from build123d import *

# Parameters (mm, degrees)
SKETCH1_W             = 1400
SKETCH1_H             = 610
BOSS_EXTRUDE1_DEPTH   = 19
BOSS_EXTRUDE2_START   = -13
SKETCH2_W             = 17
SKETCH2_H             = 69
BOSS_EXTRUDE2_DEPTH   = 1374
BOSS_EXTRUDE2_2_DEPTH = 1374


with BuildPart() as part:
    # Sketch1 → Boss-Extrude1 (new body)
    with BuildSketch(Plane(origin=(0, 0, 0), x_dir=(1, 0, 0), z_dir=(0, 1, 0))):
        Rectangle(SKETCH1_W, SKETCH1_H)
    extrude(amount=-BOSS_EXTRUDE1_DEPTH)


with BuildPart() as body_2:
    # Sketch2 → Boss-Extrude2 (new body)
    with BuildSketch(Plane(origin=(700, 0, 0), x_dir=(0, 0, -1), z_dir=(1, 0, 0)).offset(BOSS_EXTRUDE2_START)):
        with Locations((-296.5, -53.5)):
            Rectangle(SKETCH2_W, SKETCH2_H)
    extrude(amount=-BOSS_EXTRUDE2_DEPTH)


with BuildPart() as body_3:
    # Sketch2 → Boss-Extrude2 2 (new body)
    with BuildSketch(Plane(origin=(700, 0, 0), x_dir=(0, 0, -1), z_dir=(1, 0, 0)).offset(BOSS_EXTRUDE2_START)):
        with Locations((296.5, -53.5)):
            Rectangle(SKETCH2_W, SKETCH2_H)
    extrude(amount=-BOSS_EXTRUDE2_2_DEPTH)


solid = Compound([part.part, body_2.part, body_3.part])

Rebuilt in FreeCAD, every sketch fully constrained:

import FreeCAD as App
import Part
import Sketcher
from FreeCAD import Vector


def add_polygon(sketch, points):
    """Adds a closed chain of lines whose ends are joined by coincident constraints."""
    first, n = sketch.GeometryCount, len(points)
    for a, b in zip(points, points[1:] + points[:1]):
        sketch.addGeometry(Part.LineSegment(App.Vector(*a, 0), App.Vector(*b, 0)), False)
    for i in range(n):
        sketch.addConstraint(Sketcher.Constraint("Coincident", first + i, 2, first + (i + 1) % n, 1))

doc = App.newDocument("Part")
body = doc.addObject("PartDesign::Body", "Body")

# Sketch on XZ plane
sketch1 = body.newObject("Sketcher::SketchObject", "Sketch")
sketch1.AttachmentSupport = (doc.getObject("XZ_Plane"), [""])
sketch1.MapMode = "FlatFace"
add_polygon(sketch1, [(-700, -305), (-700, 305), (700, 305), (700, -305)])  # lines 0-3
sketch1.addConstraint([
    Sketcher.Constraint("Vertical", 0),
    Sketcher.Constraint("Horizontal", 1),
    Sketcher.Constraint("Vertical", 2),
    Sketcher.Constraint("Horizontal", 3),
    Sketcher.Constraint("Symmetric", 0, 2, 2, 2, -1, 1),
    Sketcher.Constraint("DistanceX", 1, 1, 1, 2, 1400.0),
    Sketcher.Constraint("DistanceY", 0, 1, 0, 2, 610.0),
])
pad1 = body.newObject("PartDesign::Pad", "Pad")
pad1.Profile = sketch1
pad1.Length = 19
body2 = doc.addObject("PartDesign::Body", "Body001")

# Sketch on YZ plane
sketch2 = body2.newObject("Sketcher::SketchObject", "Sketch001")
sketch2.AttachmentSupport = (doc.getObject("YZ_Plane001"), [""])
sketch2.MapMode = "FlatFace"
sketch2.AttachmentOffset = App.Placement(Vector(0, 0, 687), App.Rotation())
add_polygon(sketch2, [(-19, 305), (-88, 305), (-88, 288), (-19, 288)])  # lines 0-3
sketch2.addConstraint([
    Sketcher.Constraint("Horizontal", 0),
    Sketcher.Constraint("Vertical", 1),
    Sketcher.Constraint("Horizontal", 2),
    Sketcher.Constraint("Vertical", 3),
    Sketcher.Constraint("DistanceX", 0, 2, 0, 1, 69.0),
    Sketcher.Constraint("DistanceY", 1, 2, 1, 1, 17.0),
    Sketcher.Constraint("DistanceX", 0, 2, -1, 1, 88.0),
    Sketcher.Constraint("DistanceY", -1, 1, 0, 2, 305.0),
])
pad2 = body2.newObject("PartDesign::Pad", "Pad001")
pad2.Profile = sketch2
pad2.Length = 1374
pad2.Reversed = True
body3 = doc.addObject("PartDesign::Body", "Body002")

# Sketch on YZ plane
sketch3 = body3.newObject("Sketcher::SketchObject", "Sketch002")
sketch3.AttachmentSupport = (doc.getObject("YZ_Plane002"), [""])
sketch3.MapMode = "FlatFace"
sketch3.AttachmentOffset = App.Placement(Vector(0, 0, 687), App.Rotation())
add_polygon(sketch3, [(-19, -288), (-88, -288), (-88, -305), (-19, -305)])  # lines 0-3
sketch3.addConstraint([
    Sketcher.Constraint("Horizontal", 0),
    Sketcher.Constraint("Vertical", 1),
    Sketcher.Constraint("Horizontal", 2),
    Sketcher.Constraint("Vertical", 3),
    Sketcher.Constraint("DistanceX", 0, 2, 0, 1, 69.0),
    Sketcher.Constraint("DistanceY", 1, 2, 1, 1, 17.0),
    Sketcher.Constraint("DistanceX", 0, 2, -1, 1, 88.0),
    Sketcher.Constraint("DistanceY", 0, 2, -1, 1, 288.0),
])
pad3 = body3.newObject("PartDesign::Pad", "Pad002")
pad3.Profile = sketch3
pad3.Length = 1374
pad3.Reversed = True

doc.recompute()
